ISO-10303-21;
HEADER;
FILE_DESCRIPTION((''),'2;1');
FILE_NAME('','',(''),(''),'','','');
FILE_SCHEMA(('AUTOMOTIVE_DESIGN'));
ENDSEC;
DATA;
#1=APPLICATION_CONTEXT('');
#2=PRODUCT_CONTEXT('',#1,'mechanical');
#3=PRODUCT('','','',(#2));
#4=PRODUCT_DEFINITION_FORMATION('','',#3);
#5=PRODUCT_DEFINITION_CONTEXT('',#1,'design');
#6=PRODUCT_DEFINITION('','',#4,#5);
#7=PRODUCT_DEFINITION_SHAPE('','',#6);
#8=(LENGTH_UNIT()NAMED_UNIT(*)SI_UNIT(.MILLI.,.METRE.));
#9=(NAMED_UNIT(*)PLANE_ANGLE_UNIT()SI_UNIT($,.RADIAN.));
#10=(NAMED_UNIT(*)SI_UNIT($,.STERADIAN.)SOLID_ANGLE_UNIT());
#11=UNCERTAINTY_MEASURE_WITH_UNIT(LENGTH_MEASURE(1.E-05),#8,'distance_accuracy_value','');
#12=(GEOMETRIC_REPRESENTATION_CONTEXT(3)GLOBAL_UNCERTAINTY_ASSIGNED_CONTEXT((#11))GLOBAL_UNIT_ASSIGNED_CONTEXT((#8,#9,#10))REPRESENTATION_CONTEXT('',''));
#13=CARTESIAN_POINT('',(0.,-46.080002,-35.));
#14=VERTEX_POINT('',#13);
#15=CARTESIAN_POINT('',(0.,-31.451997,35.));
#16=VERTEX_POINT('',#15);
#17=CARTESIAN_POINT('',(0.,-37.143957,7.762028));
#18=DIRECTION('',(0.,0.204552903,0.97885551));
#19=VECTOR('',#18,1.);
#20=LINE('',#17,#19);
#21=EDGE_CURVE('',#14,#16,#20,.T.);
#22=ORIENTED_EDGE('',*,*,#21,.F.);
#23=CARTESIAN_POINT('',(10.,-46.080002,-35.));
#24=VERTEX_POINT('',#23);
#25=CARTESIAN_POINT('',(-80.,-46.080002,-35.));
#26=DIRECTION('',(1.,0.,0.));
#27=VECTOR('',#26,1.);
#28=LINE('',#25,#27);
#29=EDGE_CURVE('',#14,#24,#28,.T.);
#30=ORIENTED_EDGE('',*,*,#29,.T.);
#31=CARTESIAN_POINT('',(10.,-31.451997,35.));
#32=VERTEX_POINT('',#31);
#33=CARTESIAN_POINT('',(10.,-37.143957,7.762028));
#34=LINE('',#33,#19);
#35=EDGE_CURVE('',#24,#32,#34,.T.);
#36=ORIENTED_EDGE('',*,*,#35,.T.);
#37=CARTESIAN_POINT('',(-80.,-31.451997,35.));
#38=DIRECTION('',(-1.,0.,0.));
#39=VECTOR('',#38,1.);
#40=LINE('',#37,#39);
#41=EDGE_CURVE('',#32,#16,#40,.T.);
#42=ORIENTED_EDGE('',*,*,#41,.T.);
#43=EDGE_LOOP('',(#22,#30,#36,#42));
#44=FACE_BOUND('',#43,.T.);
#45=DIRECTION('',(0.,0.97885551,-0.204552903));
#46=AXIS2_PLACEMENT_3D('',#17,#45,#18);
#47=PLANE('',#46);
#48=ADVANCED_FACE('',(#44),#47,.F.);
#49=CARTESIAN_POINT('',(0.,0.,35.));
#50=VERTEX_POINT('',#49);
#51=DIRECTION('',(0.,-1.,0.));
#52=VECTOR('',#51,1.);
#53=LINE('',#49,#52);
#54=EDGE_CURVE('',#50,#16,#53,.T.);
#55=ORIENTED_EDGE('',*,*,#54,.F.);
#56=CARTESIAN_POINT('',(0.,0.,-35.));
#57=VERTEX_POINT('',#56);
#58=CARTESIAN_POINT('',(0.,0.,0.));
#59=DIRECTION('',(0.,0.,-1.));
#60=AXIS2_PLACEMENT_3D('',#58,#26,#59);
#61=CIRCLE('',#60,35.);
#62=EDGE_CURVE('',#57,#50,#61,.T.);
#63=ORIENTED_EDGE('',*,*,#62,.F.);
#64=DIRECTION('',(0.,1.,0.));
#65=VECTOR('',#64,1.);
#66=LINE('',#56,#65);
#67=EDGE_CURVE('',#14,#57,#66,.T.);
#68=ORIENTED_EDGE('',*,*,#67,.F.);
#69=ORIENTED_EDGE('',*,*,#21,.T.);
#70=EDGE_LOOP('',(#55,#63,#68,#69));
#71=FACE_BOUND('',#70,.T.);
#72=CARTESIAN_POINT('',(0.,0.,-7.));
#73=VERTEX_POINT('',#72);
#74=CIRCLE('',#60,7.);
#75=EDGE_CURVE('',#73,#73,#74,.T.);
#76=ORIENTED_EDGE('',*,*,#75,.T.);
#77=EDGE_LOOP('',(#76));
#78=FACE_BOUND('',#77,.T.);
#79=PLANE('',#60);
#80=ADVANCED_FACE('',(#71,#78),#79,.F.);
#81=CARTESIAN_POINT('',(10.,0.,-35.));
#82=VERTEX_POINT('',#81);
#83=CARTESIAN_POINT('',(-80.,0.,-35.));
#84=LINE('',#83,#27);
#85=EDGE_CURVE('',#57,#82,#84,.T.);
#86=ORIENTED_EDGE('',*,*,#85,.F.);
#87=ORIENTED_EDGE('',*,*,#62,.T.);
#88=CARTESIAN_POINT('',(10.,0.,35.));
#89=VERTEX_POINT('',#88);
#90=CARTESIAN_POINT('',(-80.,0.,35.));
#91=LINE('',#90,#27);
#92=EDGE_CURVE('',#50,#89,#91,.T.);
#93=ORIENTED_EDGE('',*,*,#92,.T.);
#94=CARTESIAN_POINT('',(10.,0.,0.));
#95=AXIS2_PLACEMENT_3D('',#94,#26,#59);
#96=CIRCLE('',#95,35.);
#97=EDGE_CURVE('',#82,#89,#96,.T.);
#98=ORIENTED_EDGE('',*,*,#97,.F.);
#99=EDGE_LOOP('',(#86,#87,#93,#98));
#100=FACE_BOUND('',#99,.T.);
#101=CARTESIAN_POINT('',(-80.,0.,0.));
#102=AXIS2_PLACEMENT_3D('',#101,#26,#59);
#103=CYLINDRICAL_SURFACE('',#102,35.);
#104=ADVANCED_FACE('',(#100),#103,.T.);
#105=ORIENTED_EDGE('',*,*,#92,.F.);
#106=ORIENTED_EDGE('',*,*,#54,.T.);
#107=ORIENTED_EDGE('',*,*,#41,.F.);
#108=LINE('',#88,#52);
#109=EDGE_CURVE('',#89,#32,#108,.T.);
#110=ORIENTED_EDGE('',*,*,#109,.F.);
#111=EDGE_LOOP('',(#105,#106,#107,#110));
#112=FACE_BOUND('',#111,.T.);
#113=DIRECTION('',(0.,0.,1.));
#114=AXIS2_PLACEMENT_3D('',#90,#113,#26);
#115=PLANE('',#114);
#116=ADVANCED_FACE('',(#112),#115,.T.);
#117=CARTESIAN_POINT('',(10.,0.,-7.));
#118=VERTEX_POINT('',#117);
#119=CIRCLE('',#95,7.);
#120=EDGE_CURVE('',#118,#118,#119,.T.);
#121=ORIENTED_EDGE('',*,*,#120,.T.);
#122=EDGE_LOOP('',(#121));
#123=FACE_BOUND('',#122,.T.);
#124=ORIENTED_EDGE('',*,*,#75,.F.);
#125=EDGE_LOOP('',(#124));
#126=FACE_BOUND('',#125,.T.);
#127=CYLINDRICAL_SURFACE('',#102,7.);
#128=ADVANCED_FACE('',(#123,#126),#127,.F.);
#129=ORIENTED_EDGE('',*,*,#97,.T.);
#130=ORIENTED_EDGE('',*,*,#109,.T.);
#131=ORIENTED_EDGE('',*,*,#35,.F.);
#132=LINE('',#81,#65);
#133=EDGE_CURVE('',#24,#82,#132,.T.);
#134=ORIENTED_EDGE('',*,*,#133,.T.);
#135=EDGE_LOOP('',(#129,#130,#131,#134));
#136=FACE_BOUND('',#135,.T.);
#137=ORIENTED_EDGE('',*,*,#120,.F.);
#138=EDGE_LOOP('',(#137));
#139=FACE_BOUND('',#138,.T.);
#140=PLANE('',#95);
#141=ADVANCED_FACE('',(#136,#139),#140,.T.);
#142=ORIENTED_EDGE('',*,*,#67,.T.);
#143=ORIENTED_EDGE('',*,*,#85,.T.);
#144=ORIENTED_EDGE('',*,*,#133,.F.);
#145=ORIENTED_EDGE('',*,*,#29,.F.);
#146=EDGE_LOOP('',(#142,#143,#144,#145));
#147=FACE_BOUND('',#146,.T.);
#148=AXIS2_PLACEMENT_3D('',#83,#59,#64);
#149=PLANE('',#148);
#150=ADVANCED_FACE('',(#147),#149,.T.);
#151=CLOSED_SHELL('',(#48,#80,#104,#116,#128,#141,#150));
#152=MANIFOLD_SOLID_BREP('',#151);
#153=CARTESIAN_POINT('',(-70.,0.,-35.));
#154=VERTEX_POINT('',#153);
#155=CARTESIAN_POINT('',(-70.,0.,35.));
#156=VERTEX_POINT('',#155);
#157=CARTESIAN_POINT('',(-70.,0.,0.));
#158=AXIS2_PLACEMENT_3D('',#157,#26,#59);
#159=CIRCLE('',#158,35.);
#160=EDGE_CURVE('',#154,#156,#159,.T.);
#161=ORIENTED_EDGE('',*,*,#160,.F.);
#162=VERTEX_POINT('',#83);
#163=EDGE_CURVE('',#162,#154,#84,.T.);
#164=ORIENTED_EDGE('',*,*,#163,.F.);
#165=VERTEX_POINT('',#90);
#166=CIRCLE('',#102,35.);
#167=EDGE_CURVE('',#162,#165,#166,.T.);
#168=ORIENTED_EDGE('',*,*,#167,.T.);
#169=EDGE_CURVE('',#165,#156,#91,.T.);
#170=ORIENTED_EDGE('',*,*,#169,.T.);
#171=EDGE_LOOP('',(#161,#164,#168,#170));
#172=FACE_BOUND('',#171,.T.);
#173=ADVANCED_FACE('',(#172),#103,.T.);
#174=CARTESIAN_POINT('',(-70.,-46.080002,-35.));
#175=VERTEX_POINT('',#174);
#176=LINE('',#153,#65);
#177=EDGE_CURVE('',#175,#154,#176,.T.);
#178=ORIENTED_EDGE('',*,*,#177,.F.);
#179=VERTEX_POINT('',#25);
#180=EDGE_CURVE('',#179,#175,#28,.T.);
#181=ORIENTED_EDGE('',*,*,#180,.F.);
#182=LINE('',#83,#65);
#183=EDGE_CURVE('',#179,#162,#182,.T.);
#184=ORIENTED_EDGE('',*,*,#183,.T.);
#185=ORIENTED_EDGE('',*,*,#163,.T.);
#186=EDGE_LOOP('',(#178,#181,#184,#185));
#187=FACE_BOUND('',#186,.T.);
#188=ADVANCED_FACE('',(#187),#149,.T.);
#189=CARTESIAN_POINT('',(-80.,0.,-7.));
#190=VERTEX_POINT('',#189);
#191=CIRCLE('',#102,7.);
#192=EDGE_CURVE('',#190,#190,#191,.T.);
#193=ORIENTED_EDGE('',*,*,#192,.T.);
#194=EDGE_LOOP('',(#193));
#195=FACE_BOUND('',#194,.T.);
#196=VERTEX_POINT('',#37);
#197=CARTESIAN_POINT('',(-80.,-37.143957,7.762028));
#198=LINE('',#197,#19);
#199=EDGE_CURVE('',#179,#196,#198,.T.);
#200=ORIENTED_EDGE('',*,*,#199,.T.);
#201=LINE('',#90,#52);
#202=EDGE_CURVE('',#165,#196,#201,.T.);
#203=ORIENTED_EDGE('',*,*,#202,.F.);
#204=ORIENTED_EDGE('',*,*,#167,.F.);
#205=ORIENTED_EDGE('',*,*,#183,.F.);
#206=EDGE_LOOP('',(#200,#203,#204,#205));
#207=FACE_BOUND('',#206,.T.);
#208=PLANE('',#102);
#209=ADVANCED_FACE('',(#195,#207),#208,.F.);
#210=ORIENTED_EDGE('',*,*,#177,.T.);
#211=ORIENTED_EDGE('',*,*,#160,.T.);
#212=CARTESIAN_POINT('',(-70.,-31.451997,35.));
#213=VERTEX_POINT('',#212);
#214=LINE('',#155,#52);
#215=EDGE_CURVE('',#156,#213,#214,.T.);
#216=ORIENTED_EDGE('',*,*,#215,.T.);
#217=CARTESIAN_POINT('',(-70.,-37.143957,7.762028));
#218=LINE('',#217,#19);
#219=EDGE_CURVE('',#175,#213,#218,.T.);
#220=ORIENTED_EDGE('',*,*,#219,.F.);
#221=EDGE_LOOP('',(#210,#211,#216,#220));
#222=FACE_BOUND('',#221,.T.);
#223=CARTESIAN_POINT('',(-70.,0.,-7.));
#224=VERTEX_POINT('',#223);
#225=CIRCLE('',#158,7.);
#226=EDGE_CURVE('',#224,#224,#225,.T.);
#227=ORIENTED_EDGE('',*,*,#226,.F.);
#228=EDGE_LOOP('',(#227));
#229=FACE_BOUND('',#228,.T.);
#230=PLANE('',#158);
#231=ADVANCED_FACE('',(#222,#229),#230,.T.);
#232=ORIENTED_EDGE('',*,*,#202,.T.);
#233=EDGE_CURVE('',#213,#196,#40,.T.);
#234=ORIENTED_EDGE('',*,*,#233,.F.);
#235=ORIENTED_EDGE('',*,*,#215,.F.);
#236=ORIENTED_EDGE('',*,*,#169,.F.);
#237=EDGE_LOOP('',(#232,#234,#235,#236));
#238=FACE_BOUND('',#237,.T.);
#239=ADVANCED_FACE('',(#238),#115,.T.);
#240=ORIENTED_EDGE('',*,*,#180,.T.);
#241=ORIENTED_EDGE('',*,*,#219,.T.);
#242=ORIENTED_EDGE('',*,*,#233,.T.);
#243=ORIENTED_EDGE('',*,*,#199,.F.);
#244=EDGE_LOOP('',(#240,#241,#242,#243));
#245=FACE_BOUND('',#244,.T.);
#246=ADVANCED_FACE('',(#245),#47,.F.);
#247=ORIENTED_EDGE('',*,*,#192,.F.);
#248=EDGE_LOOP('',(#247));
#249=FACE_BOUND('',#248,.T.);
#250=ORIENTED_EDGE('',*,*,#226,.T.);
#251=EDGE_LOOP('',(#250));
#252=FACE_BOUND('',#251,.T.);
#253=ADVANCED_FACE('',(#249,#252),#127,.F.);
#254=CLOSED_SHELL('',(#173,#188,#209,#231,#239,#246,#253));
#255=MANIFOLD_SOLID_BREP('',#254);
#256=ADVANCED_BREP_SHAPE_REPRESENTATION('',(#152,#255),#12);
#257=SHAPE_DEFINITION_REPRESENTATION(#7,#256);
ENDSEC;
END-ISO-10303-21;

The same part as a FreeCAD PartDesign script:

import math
import FreeCAD as App
import Part
import Sketcher
from FreeCAD import Vector

doc = App.newDocument("Part")
body = doc.addObject("PartDesign::Body", "Body")
body.AllowCompound = True

# Sketch on YZ plane
sketch1 = doc.addObject("Sketcher::SketchObject", "Sketch")
body.addObject(sketch1)
sketch1.AttachmentSupport = (doc.YZ_Plane, [""])
sketch1.MapMode = "FlatFace"
sketch1.addGeometry([
    Part.LineSegment(Vector(-100, -35, 0), Vector(0, -35, 0)),  # 0
    Part.ArcOfCircle(Part.Circle(Vector(0, 0, 0), Vector(0, 0, 1), 35), math.radians(-90), math.radians(90)),  # 1
    Part.LineSegment(Vector(0, 35, 0), Vector(-100, 35, 0)),  # 2
    Part.LineSegment(Vector(-100, 35, 0), Vector(-100, -35, 0)),  # 3
    Part.Circle(Vector(0, 0, 0), Vector(0, 0, 1), 7),  # 4
], False)
sketch1.addConstraint([
    Sketcher.Constraint("Tangent", 0, 2, 1, 1),
    Sketcher.Constraint("Tangent", 1, 2, 2, 1),
    Sketcher.Constraint("Coincident", 2, 2, 3, 1),
    Sketcher.Constraint("Coincident", 3, 2, 0, 1),
    Sketcher.Constraint("Horizontal", 0),
    Sketcher.Constraint("Horizontal", 2),
    Sketcher.Constraint("Vertical", 3),
    Sketcher.Constraint("Coincident", 1, 3, -1, 1),
    Sketcher.Constraint("Coincident", 4, 3, -1, 1),
    Sketcher.Constraint("Diameter", 4, 14.0),
    Sketcher.Constraint("Radius", 1, 35.0),
    Sketcher.Constraint("DistanceX", 0, 1, 0, 2, 100.0),
])
pad1 = doc.addObject("PartDesign::Pad", "Pad")
body.addObject(pad1)
pad1.Profile = sketch1
pad1.Type = "TwoLengths"
pad1.Length = 10
pad1.Length2 = 80

# Sketch on YZ plane
sketch2 = doc.addObject("Sketcher::SketchObject", "Sketch001")
body.addObject(sketch2)
sketch2.AttachmentSupport = (doc.YZ_Plane, [""])
sketch2.MapMode = "FlatFace"
sketch2.addGeometry([
    Part.LineSegment(Vector(-100, -35, 0), Vector(0, -35, 0)),  # 0
    Part.ArcOfCircle(Part.Circle(Vector(0, 0, 0), Vector(0, 0, 1), 35), math.radians(-90), math.radians(90)),  # 1
    Part.LineSegment(Vector(0, 35, 0), Vector(-100, 35, 0)),  # 2
    Part.LineSegment(Vector(-100, 35, 0), Vector(-100, -35, 0)),  # 3
    Part.Circle(Vector(0, 0, 0), Vector(0, 0, 1), 7),  # 4
], False)
sketch2.addConstraint([
    Sketcher.Constraint("Tangent", 0, 2, 1, 1),
    Sketcher.Constraint("Tangent", 1, 2, 2, 1),
    Sketcher.Constraint("Coincident", 2, 2, 3, 1),
    Sketcher.Constraint("Coincident", 3, 2, 0, 1),
    Sketcher.Constraint("Horizontal", 0),
    Sketcher.Constraint("Horizontal", 2),
    Sketcher.Constraint("Vertical", 3),
    Sketcher.Constraint("Coincident", 1, 3, -1, 1),
    Sketcher.Constraint("Coincident", 4, 3, -1, 1),
    Sketcher.Constraint("Diameter", 4, 14.0),
    Sketcher.Constraint("Radius", 1, 35.0),
    Sketcher.Constraint("DistanceX", 0, 1, 0, 2, 100.0),
])
pocket1 = doc.addObject("PartDesign::Pocket", "Pocket")
body.addObject(pocket1)
pocket1.Profile = sketch2
pocket1.Length = 70

# Sketch on an angled plane
sketch3 = doc.addObject("Sketcher::SketchObject", "Sketch002")
body.addObject(sketch3)
sketch3.Placement = App.Placement(Vector(0, -37.143957, 7.762028), App.Rotation(Vector(-1, 0, 0), Vector(0, 0.204552903, 0.97885551), Vector(0, 0.97885551, -0.204552903), "ZXY"))
sketch3.addGeometry(Part.Circle(Vector(0, 0, 0), Vector(0, 0, 1), 199), False)
sketch3.addConstraint([
    Sketcher.Constraint("Coincident", 0, 3, -1, 1),
    Sketcher.Constraint("Diameter", 0, 398.732514),
])
pocket2 = doc.addObject("PartDesign::Pocket", "Pocket001")
body.addObject(pocket2)
pocket2.Profile = sketch3
pocket2.Length = 284.687476

doc.recompute()
